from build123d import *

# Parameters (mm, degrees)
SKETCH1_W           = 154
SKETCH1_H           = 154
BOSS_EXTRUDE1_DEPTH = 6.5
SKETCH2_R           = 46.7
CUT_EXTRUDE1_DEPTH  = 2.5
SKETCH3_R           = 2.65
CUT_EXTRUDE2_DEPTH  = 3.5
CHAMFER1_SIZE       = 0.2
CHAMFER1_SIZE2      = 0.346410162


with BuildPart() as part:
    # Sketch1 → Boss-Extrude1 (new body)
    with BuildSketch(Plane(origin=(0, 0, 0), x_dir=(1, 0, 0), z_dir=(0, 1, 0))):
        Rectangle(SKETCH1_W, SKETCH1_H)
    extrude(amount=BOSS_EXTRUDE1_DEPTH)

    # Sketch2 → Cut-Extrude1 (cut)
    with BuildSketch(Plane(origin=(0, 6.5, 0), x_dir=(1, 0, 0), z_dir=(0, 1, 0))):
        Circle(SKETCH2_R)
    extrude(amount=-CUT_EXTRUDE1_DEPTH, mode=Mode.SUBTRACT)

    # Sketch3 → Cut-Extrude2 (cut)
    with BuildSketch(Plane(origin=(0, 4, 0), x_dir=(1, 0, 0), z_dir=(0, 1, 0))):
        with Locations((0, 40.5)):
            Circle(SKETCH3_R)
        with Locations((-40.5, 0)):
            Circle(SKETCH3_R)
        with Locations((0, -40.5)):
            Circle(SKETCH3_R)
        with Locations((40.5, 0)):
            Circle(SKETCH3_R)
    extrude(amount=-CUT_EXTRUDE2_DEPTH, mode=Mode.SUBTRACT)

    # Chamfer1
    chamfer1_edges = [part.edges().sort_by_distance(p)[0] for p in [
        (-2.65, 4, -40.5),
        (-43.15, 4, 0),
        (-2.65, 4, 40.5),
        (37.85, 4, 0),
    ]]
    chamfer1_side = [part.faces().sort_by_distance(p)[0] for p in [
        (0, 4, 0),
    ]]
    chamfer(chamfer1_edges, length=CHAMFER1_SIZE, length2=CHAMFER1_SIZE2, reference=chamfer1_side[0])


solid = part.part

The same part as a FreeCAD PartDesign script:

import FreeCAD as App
import Part
import Sketcher
Q = App.Units.Quantity


def edges_at(feature, points):
    """Names of the edges that pass closest to the given points."""
    edges = feature.Shape.Edges
    near = lambda p: min(range(len(edges)), key=lambda i: edges[i].distToShape(Part.Vertex(*p))[0])
    return sorted({f"Edge{near(p) + 1}" for p in points})


def add_polygon(sketch, points):
    """Adds a closed chain of lines whose ends are joined by coincident constraints."""
    first, n = sketch.GeometryCount, len(points)
    for a, b in zip(points, points[1:] + points[:1]):
        sketch.addGeometry(Part.LineSegment(App.Vector(*a, 0), App.Vector(*b, 0)), False)
    for i in range(n):
        sketch.addConstraint(Sketcher.Constraint("Coincident", first + i, 2, first + (i + 1) % n, 1))

doc = App.newDocument("Part")
body = doc.addObject("PartDesign::Body", "Body")

# Sketch on XZ plane
sketch1 = doc.addObject("Sketcher::SketchObject", "Sketch")
body.addObject(sketch1)
sketch1.AttachmentSupport = (doc.XZ_Plane, [""])
sketch1.MapMode = "FlatFace"
add_polygon(sketch1, [(-77, -77), (-77, 77), (77, 77), (77, -77)])  # lines 0-3
sketch1.addConstraint(Sketcher.Constraint("Vertical", 0))
sketch1.addConstraint(Sketcher.Constraint("Horizontal", 1))
sketch1.addConstraint(Sketcher.Constraint("Vertical", 2))
sketch1.addConstraint(Sketcher.Constraint("Horizontal", 3))
sketch1.addConstraint(Sketcher.Constraint("Symmetric", 0, 2, 2, 2, -1, 1))
sketch1.addConstraint(Sketcher.Constraint("Equal", 3, 0))
sketch1.addConstraint(Sketcher.Constraint("DistanceX", 1, 1, 1, 2, Q("154 mm")))
pad1 = doc.addObject("PartDesign::Pad", "Pad")
body.addObject(pad1)
pad1.Profile = sketch1
pad1.Length = 6.5
pad1.Reversed = True

# Sketch on XZ plane
sketch2 = doc.addObject("Sketcher::SketchObject", "Sketch001")
body.addObject(sketch2)
sketch2.AttachmentSupport = (doc.XZ_Plane, [""])
sketch2.MapMode = "FlatFace"
sketch2.AttachmentOffset = App.Placement(App.Vector(0, 0, -6.5), App.Rotation())
sketch2.addGeometry(Part.Circle(App.Vector(0, 0, 0), App.Vector(0, 0, 1), 47), False)
sketch2.addConstraint(Sketcher.Constraint("Coincident", 0, 3, -1, 1))
sketch2.addConstraint(Sketcher.Constraint("Diameter", 0, Q("93.4 mm")))
pocket1 = doc.addObject("PartDesign::Pocket", "Pocket")
body.addObject(pocket1)
pocket1.Profile = sketch2
pocket1.Length = 2.5
pocket1.Reversed = True

# Sketch on XZ plane
sketch3 = doc.addObject("Sketcher::SketchObject", "Sketch002")
body.addObject(sketch3)
sketch3.AttachmentSupport = (doc.XZ_Plane, [""])
sketch3.MapMode = "FlatFace"
sketch3.AttachmentOffset = App.Placement(App.Vector(0, 0, -4), App.Rotation())
sketch3.addGeometry(Part.Circle(App.Vector(0, -40.5, 0), App.Vector(0, 0, 1), 2.6), False)
sketch3.addGeometry(Part.Circle(App.Vector(-40.5, 0, 0), App.Vector(0, 0, 1), 2.6), False)
sketch3.addGeometry(Part.Circle(App.Vector(0, 40.5, 0), App.Vector(0, 0, 1), 2.6), False)
sketch3.addGeometry(Part.Circle(App.Vector(40.5, 0, 0), App.Vector(0, 0, 1), 2.6), False)
sketch3.addConstraint(Sketcher.Constraint("Equal", 0, 1))
sketch3.addConstraint(Sketcher.Constraint("Equal", 1, 2))
sketch3.addConstraint(Sketcher.Constraint("Equal", 2, 3))
sketch3.addConstraint(Sketcher.Constraint("Symmetric", 0, 3, 2, 3, -1, 1))
sketch3.addConstraint(Sketcher.Constraint("Symmetric", 1, 3, 3, 3, -1, 1))
sketch3.addConstraint(Sketcher.Constraint("PointOnObject", 0, 3, -2))
sketch3.addConstraint(Sketcher.Constraint("PointOnObject", 1, 3, -1))
sketch3.addConstraint(Sketcher.Constraint("Diameter", 0, Q("5.3 mm")))
sketch3.addConstraint(Sketcher.Constraint("DistanceY", 0, 3, 2, 3, Q("81 mm")))
sketch3.addConstraint(Sketcher.Constraint("DistanceX", 1, 3, 3, 3, Q("81 mm")))
pocket2 = doc.addObject("PartDesign::Pocket", "Pocket001")
body.addObject(pocket2)
pocket2.Profile = sketch3
pocket2.Length = 3.5
pocket2.Reversed = True
doc.recompute()

chamfer = doc.addObject("PartDesign::Chamfer", "Chamfer")
body.addObject(chamfer)
chamfer.Base = (pocket2, edges_at(pocket2, [
    (-2.65, 4, -40.5),
    (-43.15, 4, 0),
    (-2.65, 4, 40.5),
    (37.85, 4, 0),
]))
chamfer.ChamferType = "Two distances"
chamfer.Size = 0.2
chamfer.Size2 = 0.34641

doc.recompute()
